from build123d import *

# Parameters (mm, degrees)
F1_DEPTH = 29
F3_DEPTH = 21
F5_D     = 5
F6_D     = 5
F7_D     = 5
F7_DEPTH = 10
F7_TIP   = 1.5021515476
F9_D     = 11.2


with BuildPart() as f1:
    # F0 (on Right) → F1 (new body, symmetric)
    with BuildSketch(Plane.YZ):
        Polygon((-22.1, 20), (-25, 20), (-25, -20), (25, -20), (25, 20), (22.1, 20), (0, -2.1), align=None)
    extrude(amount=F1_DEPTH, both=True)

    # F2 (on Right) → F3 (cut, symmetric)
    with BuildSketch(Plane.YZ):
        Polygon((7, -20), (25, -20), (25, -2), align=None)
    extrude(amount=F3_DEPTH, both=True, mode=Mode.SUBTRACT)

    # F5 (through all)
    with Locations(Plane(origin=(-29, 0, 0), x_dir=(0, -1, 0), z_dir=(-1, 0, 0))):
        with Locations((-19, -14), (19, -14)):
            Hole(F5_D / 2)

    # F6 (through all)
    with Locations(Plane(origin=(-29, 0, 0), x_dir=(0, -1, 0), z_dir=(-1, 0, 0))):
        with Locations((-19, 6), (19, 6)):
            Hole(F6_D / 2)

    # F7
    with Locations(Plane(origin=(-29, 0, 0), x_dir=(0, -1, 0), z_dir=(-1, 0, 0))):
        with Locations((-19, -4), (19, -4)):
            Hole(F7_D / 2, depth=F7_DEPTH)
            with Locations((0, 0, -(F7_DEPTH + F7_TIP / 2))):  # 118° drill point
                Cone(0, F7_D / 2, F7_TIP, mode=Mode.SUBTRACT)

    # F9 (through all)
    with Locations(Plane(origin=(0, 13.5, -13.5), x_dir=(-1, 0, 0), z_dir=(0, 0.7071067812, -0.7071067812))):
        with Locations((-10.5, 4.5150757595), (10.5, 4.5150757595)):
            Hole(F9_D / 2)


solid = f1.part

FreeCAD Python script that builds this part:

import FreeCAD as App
import Part
import Sketcher
from FreeCAD import Vector
Q = App.Units.Quantity


def add_polygon(sketch, points):
    """Adds a closed chain of lines whose ends are joined by coincident constraints."""
    first, n = sketch.GeometryCount, len(points)
    for a, b in zip(points, points[1:] + points[:1]):
        sketch.addGeometry(Part.LineSegment(App.Vector(*a, 0), App.Vector(*b, 0)), False)
    for i in range(n):
        sketch.addConstraint(Sketcher.Constraint("Coincident", first + i, 2, first + (i + 1) % n, 1))

doc = App.newDocument("Part")
body = doc.addObject("PartDesign::Body", "Body")

sketch1 = body.newObject("Sketcher::SketchObject", "Sketch")
sketch1.AttachmentSupport = (doc.getObject("YZ_Plane"), [""])
sketch1.MapMode = "FlatFace"
add_polygon(sketch1, [(-22.1, 20), (-25, 20), (-25, -20), (25, -20), (25, 20), (22.1, 20), (0, -2.1)])
sketch1.addConstraint(Sketcher.Constraint("Horizontal", 0))
sketch1.addConstraint(Sketcher.Constraint("Vertical", 1))
sketch1.addConstraint(Sketcher.Constraint("Horizontal", 2))
sketch1.addConstraint(Sketcher.Constraint("Vertical", 3))
sketch1.addConstraint(Sketcher.Constraint("Horizontal", 4))
sketch1.addConstraint(Sketcher.Constraint("Symmetric", 0, 2, 2, 2, -1, 1))
sketch1.addConstraint(Sketcher.Constraint("Symmetric", 4, 2, 6, 2, -2))
sketch1.addConstraint(Sketcher.Constraint("PointOnObject", 5, 2, -2))
sketch1.addConstraint(Sketcher.Constraint("Perpendicular", 5, 6))
sketch1.addConstraint(Sketcher.Constraint("DistanceX", 2, 1, 2, 2, Q("50 mm")))
sketch1.addConstraint(Sketcher.Constraint("DistanceY", 1, 2, 1, 1, Q("40 mm")))
sketch1.addConstraint(Sketcher.Constraint("DistanceX", 0, 2, 0, 1, Q("2.9 mm")))
pad1 = body.newObject("PartDesign::Pad", "Pad")
pad1.Profile = sketch1
pad1.Length = 58
pad1.Midplane = True

sketch2 = body.newObject("Sketcher::SketchObject", "Sketch001")
sketch2.AttachmentSupport = (doc.getObject("YZ_Plane"), [""])
sketch2.MapMode = "FlatFace"
add_polygon(sketch2, [(7, -20), (25, -20), (25, -2)])
sketch2.addConstraint(Sketcher.Constraint("Horizontal", 0))
sketch2.addConstraint(Sketcher.Constraint("Vertical", 1))
sketch2.addConstraint(Sketcher.Constraint("Equal", 0, 1))
sketch2.addConstraint(Sketcher.Constraint("DistanceX", 0, 1, 0, 2, Q("18 mm")))
sketch2.addConstraint(Sketcher.Constraint("DistanceX", -1, 1, 0, 2, Q("25 mm")))
sketch2.addConstraint(Sketcher.Constraint("DistanceY", 0, 2, -1, 1, Q("20 mm")))
pocket1 = body.newObject("PartDesign::Pocket", "Pocket")
pocket1.Profile = sketch2
pocket1.Length = 42
pocket1.Midplane = True

sketch3 = body.newObject("Sketcher::SketchObject", "Sketch002")
sketch3.AttachmentSupport = (doc.getObject("YZ_Plane"), [""])
sketch3.MapMode = "FlatFace"
sketch3.AttachmentOffset = App.Placement(Vector(0, 0, -29), App.Rotation())
sketch3.addGeometry(Part.Circle(Vector(19, -14, 0), Vector(0, 0, 1), 2.5), False)
sketch3.addGeometry(Part.Circle(Vector(-19, -14, 0), Vector(0, 0, 1), 2.5), False)
sketch3.addConstraint(Sketcher.Constraint("Equal", 0, 1))
sketch3.addConstraint(Sketcher.Constraint("Symmetric", 0, 3, 1, 3, -2))
sketch3.addConstraint(Sketcher.Constraint("Diameter", 0, Q("5 mm")))
sketch3.addConstraint(Sketcher.Constraint("DistanceX", -1, 1, 0, 3, Q("19 mm")))
sketch3.addConstraint(Sketcher.Constraint("DistanceY", 0, 3, -1, 1, Q("14 mm")))
doc.recompute()
hole = body.newObject("PartDesign::Hole", "Hole")
hole.Profile = sketch3
hole.ThreadType = "None"
hole.Diameter = 5
hole.DepthType = "ThroughAll"
hole.Reversed = True

sketch4 = body.newObject("Sketcher::SketchObject", "Sketch003")
sketch4.AttachmentSupport = (doc.getObject("YZ_Plane"), [""])
sketch4.MapMode = "FlatFace"
sketch4.AttachmentOffset = App.Placement(Vector(0, 0, -29), App.Rotation())
sketch4.addGeometry(Part.Circle(Vector(19, 6, 0), Vector(0, 0, 1), 2.5), False)
sketch4.addGeometry(Part.Circle(Vector(-19, 6, 0), Vector(0, 0, 1), 2.5), False)
sketch4.addConstraint(Sketcher.Constraint("Equal", 0, 1))
sketch4.addConstraint(Sketcher.Constraint("Symmetric", 0, 3, 1, 3, -2))
sketch4.addConstraint(Sketcher.Constraint("Diameter", 0, Q("5 mm")))
sketch4.addConstraint(Sketcher.Constraint("DistanceX", -1, 1, 0, 3, Q("19 mm")))
sketch4.addConstraint(Sketcher.Constraint("DistanceY", -1, 1, 0, 3, Q("6 mm")))
doc.recompute()
hole2 = body.newObject("PartDesign::Hole", "Hole001")
hole2.Profile = sketch4
hole2.ThreadType = "None"
hole2.Diameter = 5
hole2.DepthType = "ThroughAll"
hole2.Reversed = True

sketch5 = body.newObject("Sketcher::SketchObject", "Sketch004")
sketch5.AttachmentSupport = (doc.getObject("YZ_Plane"), [""])
sketch5.MapMode = "FlatFace"
sketch5.AttachmentOffset = App.Placement(Vector(0, 0, -29), App.Rotation())
sketch5.addGeometry(Part.Circle(Vector(19, -4, 0), Vector(0, 0, 1), 2.5), False)
sketch5.addGeometry(Part.Circle(Vector(-19, -4, 0), Vector(0, 0, 1), 2.5), False)
sketch5.addConstraint(Sketcher.Constraint("Equal", 0, 1))
sketch5.addConstraint(Sketcher.Constraint("Symmetric", 0, 3, 1, 3, -2))
sketch5.addConstraint(Sketcher.Constraint("Diameter", 0, Q("5 mm")))
sketch5.addConstraint(Sketcher.Constraint("DistanceX", -1, 1, 0, 3, Q("19 mm")))
sketch5.addConstraint(Sketcher.Constraint("DistanceY", 0, 3, -1, 1, Q("4 mm")))
doc.recompute()
hole3 = body.newObject("PartDesign::Hole", "Hole002")
hole3.Profile = sketch5
hole3.ThreadType = "None"
hole3.Diameter = 5
hole3.DepthType = "Dimension"
hole3.Depth = 10
hole3.DrillPoint = "Angled"
hole3.DrillPointAngle = 118
hole3.Reversed = True

sketch6 = body.newObject("Sketcher::SketchObject", "Sketch005")
sketch6.Placement = App.Placement(Vector(0, 13.5, -13.5), App.Rotation(Vector(-1, 0, 0), Vector(0, 0.707106781, 0.707106781), Vector(0, 0.707106781, -0.707106781), "ZXY"))
sketch6.addGeometry(Part.Circle(Vector(-10.5, 4.515076, 0), Vector(0, 0, 1), 5.6), False)
sketch6.addGeometry(Part.Circle(Vector(10.5, 4.515076, 0), Vector(0, 0, 1), 5.6), False)
sketch6.addConstraint(Sketcher.Constraint("Equal", 0, 1))
sketch6.addConstraint(Sketcher.Constraint("Symmetric", 0, 3, 1, 3, -2))
sketch6.addConstraint(Sketcher.Constraint("Diameter", 0, Q("11.2 mm")))
sketch6.addConstraint(Sketcher.Constraint("DistanceX", 0, 3, 1, 3, Q("21 mm")))
sketch6.addConstraint(Sketcher.Constraint("DistanceY", -1, 1, 0, 3, Q("4.515076 mm")))
doc.recompute()
hole4 = body.newObject("PartDesign::Hole", "Hole003")
hole4.Profile = sketch6
hole4.ThreadType = "None"
hole4.Diameter = 11.2
hole4.DepthType = "ThroughAll"

doc.recompute()
